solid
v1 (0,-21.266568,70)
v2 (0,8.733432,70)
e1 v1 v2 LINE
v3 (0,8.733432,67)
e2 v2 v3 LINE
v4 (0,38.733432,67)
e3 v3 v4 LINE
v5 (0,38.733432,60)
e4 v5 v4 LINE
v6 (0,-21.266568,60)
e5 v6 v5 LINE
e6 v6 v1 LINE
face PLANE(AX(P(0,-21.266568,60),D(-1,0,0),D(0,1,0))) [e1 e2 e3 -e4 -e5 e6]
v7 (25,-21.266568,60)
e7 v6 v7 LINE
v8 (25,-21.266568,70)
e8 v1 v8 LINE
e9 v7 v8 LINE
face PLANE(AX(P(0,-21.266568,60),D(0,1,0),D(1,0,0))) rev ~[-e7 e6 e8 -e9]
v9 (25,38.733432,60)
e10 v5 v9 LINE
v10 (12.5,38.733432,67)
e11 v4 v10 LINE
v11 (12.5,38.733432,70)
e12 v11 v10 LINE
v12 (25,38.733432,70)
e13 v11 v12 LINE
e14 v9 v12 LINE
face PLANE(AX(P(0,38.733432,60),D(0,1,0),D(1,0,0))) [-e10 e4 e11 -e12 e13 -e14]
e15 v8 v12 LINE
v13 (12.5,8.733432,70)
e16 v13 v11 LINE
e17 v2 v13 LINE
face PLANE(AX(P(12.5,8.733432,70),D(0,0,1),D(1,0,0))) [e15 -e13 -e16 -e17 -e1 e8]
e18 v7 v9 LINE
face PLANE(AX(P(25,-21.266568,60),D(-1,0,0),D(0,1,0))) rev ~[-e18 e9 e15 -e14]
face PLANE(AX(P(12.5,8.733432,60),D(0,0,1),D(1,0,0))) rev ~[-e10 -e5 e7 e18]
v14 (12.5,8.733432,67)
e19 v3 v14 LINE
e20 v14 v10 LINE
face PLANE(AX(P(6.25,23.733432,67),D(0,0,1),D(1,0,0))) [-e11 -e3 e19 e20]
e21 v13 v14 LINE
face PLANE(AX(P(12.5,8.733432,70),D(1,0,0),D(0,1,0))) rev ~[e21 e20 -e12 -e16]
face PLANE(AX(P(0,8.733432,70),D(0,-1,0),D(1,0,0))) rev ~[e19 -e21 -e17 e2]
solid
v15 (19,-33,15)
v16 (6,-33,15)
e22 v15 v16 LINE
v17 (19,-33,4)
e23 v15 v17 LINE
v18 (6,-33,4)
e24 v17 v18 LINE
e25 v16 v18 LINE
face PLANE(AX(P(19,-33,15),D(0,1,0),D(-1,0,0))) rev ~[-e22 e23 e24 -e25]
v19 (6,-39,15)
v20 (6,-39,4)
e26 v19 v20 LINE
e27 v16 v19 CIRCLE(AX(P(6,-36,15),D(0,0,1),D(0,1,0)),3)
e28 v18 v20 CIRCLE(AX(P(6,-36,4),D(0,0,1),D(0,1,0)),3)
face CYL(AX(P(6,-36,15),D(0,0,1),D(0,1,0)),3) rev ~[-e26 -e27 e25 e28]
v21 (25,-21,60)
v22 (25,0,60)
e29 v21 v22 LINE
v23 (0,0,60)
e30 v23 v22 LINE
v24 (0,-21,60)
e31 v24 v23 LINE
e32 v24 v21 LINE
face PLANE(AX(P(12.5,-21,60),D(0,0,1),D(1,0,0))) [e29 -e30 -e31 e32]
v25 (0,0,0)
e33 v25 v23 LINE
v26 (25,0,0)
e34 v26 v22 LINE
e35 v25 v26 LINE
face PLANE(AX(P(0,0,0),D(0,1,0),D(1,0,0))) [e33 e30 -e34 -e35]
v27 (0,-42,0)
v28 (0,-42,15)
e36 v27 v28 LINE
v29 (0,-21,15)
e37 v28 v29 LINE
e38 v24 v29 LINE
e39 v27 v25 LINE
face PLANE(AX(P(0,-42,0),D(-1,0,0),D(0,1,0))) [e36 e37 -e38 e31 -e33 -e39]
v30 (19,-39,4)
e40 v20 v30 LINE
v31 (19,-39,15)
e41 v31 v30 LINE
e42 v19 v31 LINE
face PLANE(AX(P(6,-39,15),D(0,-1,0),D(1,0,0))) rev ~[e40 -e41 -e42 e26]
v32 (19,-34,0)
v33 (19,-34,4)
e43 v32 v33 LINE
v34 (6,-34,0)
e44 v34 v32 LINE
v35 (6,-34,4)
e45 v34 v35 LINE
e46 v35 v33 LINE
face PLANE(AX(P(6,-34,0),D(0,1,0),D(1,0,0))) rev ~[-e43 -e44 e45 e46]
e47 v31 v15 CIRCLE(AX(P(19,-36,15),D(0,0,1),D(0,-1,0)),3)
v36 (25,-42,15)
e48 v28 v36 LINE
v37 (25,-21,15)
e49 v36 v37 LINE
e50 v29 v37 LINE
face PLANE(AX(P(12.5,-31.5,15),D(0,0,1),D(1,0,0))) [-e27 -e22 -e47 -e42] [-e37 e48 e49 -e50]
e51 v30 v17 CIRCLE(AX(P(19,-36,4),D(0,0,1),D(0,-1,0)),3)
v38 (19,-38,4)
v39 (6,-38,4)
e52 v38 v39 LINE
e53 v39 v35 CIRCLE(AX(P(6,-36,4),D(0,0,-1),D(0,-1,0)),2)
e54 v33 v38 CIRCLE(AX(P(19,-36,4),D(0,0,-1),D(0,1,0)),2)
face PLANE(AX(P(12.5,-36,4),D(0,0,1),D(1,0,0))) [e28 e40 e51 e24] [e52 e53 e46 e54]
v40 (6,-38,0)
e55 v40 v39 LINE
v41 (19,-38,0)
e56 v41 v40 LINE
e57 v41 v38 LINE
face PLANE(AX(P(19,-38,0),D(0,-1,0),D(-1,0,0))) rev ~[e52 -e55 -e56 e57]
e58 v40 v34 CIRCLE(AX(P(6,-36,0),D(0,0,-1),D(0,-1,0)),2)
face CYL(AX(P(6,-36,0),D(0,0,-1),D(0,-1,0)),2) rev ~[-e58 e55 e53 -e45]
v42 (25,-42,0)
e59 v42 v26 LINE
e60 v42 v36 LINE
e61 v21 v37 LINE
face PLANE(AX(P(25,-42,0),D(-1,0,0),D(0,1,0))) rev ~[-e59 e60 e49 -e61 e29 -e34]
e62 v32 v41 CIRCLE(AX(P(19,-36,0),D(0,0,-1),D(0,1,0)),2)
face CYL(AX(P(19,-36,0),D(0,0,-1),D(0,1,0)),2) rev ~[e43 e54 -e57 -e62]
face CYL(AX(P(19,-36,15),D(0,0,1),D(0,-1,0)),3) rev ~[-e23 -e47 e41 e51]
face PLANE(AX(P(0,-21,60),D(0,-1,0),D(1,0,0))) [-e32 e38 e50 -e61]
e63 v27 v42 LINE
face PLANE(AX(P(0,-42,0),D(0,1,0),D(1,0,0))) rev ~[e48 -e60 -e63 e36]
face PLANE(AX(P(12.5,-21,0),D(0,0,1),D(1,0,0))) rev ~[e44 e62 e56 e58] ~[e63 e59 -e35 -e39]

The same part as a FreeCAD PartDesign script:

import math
import FreeCAD as App
import Part
import Sketcher

V = App.Vector

doc = App.newDocument("Part")
body = doc.addObject("PartDesign::Body", "Body")

# Sketch on XY plane
sketch1 = body.newObject("Sketcher::SketchObject", "Sketch")
sketch1.AttachmentSupport = (doc.getObject("XY_Plane"), [""])
sketch1.MapMode = "FlatFace"
sketch1.addGeometry([
    Part.LineSegment(V(0, 0, 0), V(0, -42, 0)),
    Part.LineSegment(V(0, -42, 0), V(25, -42, 0)),
    Part.LineSegment(V(25, -42, 0), V(25, 0, 0)),
    Part.LineSegment(V(25, 0, 0), V(0, 0, 0)),
], False)
sketch1.addConstraint([
    Sketcher.Constraint("Coincident", 0, 2, 1, 1),
    Sketcher.Constraint("Coincident", 1, 2, 2, 1),
    Sketcher.Constraint("Coincident", 2, 2, 3, 1),
    Sketcher.Constraint("Coincident", 3, 2, 0, 1),
    Sketcher.Constraint("Vertical", 0),
    Sketcher.Constraint("Horizontal", 1),
    Sketcher.Constraint("Vertical", 2),
    Sketcher.Constraint("Horizontal", 3),
    Sketcher.Constraint("Coincident", 3, 2, -1, 1),
    Sketcher.Constraint("DistanceX", 1, 1, 1, 2, 25.0),
    Sketcher.Constraint("DistanceY", 0, 2, 0, 1, 42.0),
])
pad1 = body.newObject("PartDesign::Pad", "Pad")
pad1.Profile = sketch1
pad1.Length = 60

# Sketch on XY plane
sketch2 = body.newObject("Sketcher::SketchObject", "Sketch001")
sketch2.AttachmentSupport = (doc.getObject("XY_Plane"), [""])
sketch2.MapMode = "FlatFace"
sketch2.AttachmentOffset = App.Placement(V(0, 0, 60), App.Rotation())
sketch2.addGeometry([
    Part.LineSegment(V(0, -21, 0), V(0, -42, 0)),
    Part.LineSegment(V(0, -42, 0), V(25, -42, 0)),
    Part.LineSegment(V(25, -42, 0), V(25, -21, 0)),
    Part.LineSegment(V(25, -21, 0), V(0, -21, 0)),
], False)
sketch2.addConstraint([
    Sketcher.Constraint("Coincident", 0, 2, 1, 1),
    Sketcher.Constraint("Coincident", 1, 2, 2, 1),
    Sketcher.Constraint("Coincident", 2, 2, 3, 1),
    Sketcher.Constraint("Coincident", 3, 2, 0, 1),
    Sketcher.Constraint("Vertical", 0),
    Sketcher.Constraint("Horizontal", 1),
    Sketcher.Constraint("Vertical", 2),
    Sketcher.Constraint("Horizontal", 3),
    Sketcher.Constraint("PointOnObject", 0, 2, -2),
    Sketcher.Constraint("DistanceX", 1, 1, 1, 2, 25.0),
    Sketcher.Constraint("DistanceY", 0, 2, 0, 1, 21.0),
    Sketcher.Constraint("DistanceY", 0, 2, -1, 1, 42.0),
])
pocket1 = body.newObject("PartDesign::Pocket", "Pocket")
pocket1.Profile = sketch2
pocket1.Length = 45

# Sketch on XY plane
sketch3 = body.newObject("Sketcher::SketchObject", "Sketch002")
sketch3.AttachmentSupport = (doc.getObject("XY_Plane"), [""])
sketch3.MapMode = "FlatFace"
sketch3.addGeometry([
    Part.LineSegment(V(19, -38, 0), V(6, -38, 0)),
    Part.ArcOfCircle(Part.Circle(V(6, -36, 0), V(0, 0, 1), 2), math.radians(90), math.radians(270)),
    Part.LineSegment(V(6, -34, 0), V(19, -34, 0)),
    Part.ArcOfCircle(Part.Circle(V(19, -36, 0), V(0, 0, 1), 2), math.radians(-90), math.radians(90)),
], False)
sketch3.addConstraint([
    Sketcher.Constraint("Tangent", 0, 2, 1, 2),
    Sketcher.Constraint("Tangent", 1, 1, 2, 1),
    Sketcher.Constraint("Tangent", 2, 2, 3, 2),
    Sketcher.Constraint("Tangent", 3, 1, 0, 1),
    Sketcher.Constraint("Horizontal", 0),
    Sketcher.Constraint("Horizontal", 2),
    Sketcher.Constraint("Radius", 1, 2.0),
    Sketcher.Constraint("DistanceX", 0, 2, 0, 1, 13.0),
    Sketcher.Constraint("DistanceX", -1, 1, 1, 3, 6.0),
    Sketcher.Constraint("DistanceY", 1, 3, -1, 1, 36.0),
])
pocket2 = body.newObject("PartDesign::Pocket", "Pocket001")
pocket2.Profile = sketch3
pocket2.Length = 35
pocket2.Reversed = True

# Sketch on XY plane
sketch4 = body.newObject("Sketcher::SketchObject", "Sketch003")
sketch4.AttachmentSupport = (doc.getObject("XY_Plane"), [""])
sketch4.MapMode = "FlatFace"
sketch4.AttachmentOffset = App.Placement(V(0, 0, 15), App.Rotation())
sketch4.addGeometry([
    Part.ArcOfCircle(Part.Circle(V(6, -36, 0), V(0, 0, 1), 3), math.radians(90), math.radians(270)),
    Part.LineSegment(V(6, -39, 0), V(19, -39, 0)),
    Part.ArcOfCircle(Part.Circle(V(19, -36, 0), V(0, 0, 1), 3), math.radians(-90), math.radians(90)),
    Part.LineSegment(V(19, -33, 0), V(6, -33, 0)),
], False)
sketch4.addConstraint([
    Sketcher.Constraint("Tangent", 0, 2, 1, 1),
    Sketcher.Constraint("Tangent", 1, 2, 2, 1),
    Sketcher.Constraint("Tangent", 2, 2, 3, 1),
    Sketcher.Constraint("Tangent", 3, 2, 0, 1),
    Sketcher.Constraint("Horizontal", 1),
    Sketcher.Constraint("Horizontal", 3),
    Sketcher.Constraint("Radius", 0, 3.0),
    Sketcher.Constraint("DistanceX", 1, 1, 1, 2, 13.0),
    Sketcher.Constraint("DistanceX", -1, 1, 0, 3, 6.0),
    Sketcher.Constraint("DistanceY", 0, 3, -1, 1, 36.0),
])
pocket3 = body.newObject("PartDesign::Pocket", "Pocket002")
pocket3.Profile = sketch4
pocket3.Length = 11
body2 = doc.addObject("PartDesign::Body", "Body001")

# Sketch on XY plane
sketch5 = body2.newObject("Sketcher::SketchObject", "Sketch004")
sketch5.AttachmentSupport = (doc.getObject("XY_Plane001"), [""])
sketch5.MapMode = "FlatFace"
sketch5.AttachmentOffset = App.Placement(V(0, 0, 60), App.Rotation())
sketch5.addGeometry([
    Part.LineSegment(V(0, 39, 0), V(0, -21, 0)),
    Part.LineSegment(V(0, -21, 0), V(25, -21, 0)),
    Part.LineSegment(V(25, -21, 0), V(25, 39, 0)),
    Part.LineSegment(V(25, 39, 0), V(0, 39, 0)),
], False)
sketch5.addConstraint([
    Sketcher.Constraint("Coincident", 0, 2, 1, 1),
    Sketcher.Constraint("Coincident", 1, 2, 2, 1),
    Sketcher.Constraint("Coincident", 2, 2, 3, 1),
    Sketcher.Constraint("Coincident", 3, 2, 0, 1),
    Sketcher.Constraint("Vertical", 0),
    Sketcher.Constraint("Horizontal", 1),
    Sketcher.Constraint("Vertical", 2),
    Sketcher.Constraint("Horizontal", 3),
    Sketcher.Constraint("PointOnObject", 0, 2, -2),
    Sketcher.Constraint("DistanceX", 1, 1, 1, 2, 25.0),
    Sketcher.Constraint("DistanceY", 0, 2, 0, 1, 60.0),
    Sketcher.Constraint("DistanceY", 0, 2, -1, 1, 21.266568),
])
pad2 = body2.newObject("PartDesign::Pad", "Pad001")
pad2.Profile = sketch5
pad2.Length = 10

# Sketch on XY plane
sketch6 = body2.newObject("Sketcher::SketchObject", "Sketch005")
sketch6.AttachmentSupport = (doc.getObject("XY_Plane001"), [""])
sketch6.MapMode = "FlatFace"
sketch6.AttachmentOffset = App.Placement(V(0, 0, 70), App.Rotation())
sketch6.addGeometry([
    Part.LineSegment(V(0, 39, 0), V(0, 9, 0)),
    Part.LineSegment(V(0, 9, 0), V(12, 9, 0)),
    Part.LineSegment(V(12, 9, 0), V(12, 39, 0)),
    Part.LineSegment(V(12, 39, 0), V(0, 39, 0)),
], False)
sketch6.addConstraint([
    Sketcher.Constraint("Coincident", 0, 2, 1, 1),
    Sketcher.Constraint("Coincident", 1, 2, 2, 1),
    Sketcher.Constraint("Coincident", 2, 2, 3, 1),
    Sketcher.Constraint("Coincident", 3, 2, 0, 1),
    Sketcher.Constraint("Vertical", 0),
    Sketcher.Constraint("Horizontal", 1),
    Sketcher.Constraint("Vertical", 2),
    Sketcher.Constraint("Horizontal", 3),
    Sketcher.Constraint("PointOnObject", 0, 2, -2),
    Sketcher.Constraint("DistanceY", 0, 2, 0, 1, 30.0),
    Sketcher.Constraint("DistanceX", 1, 1, 1, 2, 12.5),
    Sketcher.Constraint("DistanceY", -1, 1, 0, 2, 8.733432),
])
pocket4 = body2.newObject("PartDesign::Pocket", "Pocket003")
pocket4.Profile = sketch6
pocket4.Length = 3

doc.recompute()
